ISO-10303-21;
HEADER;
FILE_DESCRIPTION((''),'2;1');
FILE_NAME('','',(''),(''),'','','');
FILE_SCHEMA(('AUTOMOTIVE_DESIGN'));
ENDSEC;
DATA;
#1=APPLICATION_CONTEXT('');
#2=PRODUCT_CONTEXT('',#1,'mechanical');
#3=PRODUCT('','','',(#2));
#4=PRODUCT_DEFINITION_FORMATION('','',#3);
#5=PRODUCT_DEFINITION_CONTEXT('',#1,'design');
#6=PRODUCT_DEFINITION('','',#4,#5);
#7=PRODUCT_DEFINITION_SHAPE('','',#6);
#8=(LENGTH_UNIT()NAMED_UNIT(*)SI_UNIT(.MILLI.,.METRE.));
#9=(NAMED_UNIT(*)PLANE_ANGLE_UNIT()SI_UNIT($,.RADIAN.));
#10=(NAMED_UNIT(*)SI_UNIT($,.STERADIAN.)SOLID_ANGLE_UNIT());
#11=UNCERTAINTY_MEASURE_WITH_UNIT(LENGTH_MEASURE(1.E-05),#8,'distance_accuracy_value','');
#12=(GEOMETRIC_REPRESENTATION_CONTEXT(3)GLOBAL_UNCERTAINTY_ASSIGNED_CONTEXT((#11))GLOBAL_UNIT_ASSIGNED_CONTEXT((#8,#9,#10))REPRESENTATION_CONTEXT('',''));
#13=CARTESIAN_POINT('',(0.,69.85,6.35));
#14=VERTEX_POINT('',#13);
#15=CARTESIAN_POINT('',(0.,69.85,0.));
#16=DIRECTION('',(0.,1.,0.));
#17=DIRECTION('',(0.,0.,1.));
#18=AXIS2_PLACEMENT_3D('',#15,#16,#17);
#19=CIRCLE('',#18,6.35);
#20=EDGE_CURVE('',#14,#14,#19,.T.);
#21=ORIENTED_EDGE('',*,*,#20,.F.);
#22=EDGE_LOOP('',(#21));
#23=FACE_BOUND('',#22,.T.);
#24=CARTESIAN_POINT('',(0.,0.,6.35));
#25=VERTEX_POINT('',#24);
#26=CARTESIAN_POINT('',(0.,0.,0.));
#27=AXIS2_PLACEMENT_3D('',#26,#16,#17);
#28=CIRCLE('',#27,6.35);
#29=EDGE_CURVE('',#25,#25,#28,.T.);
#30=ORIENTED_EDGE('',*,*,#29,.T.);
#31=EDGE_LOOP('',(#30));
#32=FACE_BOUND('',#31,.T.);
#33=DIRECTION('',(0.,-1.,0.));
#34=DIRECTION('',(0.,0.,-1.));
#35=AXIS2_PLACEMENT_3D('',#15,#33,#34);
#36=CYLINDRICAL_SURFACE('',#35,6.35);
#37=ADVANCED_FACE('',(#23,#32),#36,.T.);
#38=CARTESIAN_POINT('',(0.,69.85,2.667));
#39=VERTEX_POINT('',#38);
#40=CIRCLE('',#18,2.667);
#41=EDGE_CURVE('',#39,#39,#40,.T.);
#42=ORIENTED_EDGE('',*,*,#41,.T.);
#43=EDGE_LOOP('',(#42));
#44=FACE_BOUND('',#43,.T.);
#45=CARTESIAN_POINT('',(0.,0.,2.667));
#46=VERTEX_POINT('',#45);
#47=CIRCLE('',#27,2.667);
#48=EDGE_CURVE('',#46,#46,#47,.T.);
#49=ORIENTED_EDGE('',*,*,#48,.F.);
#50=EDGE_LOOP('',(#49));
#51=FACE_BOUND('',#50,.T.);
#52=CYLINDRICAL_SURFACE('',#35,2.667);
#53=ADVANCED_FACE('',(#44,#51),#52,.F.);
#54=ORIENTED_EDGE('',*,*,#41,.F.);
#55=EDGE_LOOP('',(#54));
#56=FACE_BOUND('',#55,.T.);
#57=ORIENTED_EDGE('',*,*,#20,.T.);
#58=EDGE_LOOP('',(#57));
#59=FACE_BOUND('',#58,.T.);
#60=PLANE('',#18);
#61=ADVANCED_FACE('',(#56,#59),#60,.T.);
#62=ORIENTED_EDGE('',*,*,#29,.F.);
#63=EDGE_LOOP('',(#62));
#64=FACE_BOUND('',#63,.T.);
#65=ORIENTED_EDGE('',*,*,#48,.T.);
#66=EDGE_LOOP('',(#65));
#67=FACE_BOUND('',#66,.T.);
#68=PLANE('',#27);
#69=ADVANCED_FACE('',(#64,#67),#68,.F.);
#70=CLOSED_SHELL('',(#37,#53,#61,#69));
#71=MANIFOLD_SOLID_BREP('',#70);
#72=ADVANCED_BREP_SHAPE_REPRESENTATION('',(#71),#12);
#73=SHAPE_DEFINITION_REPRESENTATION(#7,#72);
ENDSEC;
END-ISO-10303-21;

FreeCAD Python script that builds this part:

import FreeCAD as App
import Part
import Sketcher

V = App.Vector
Q = App.Units.Quantity

doc = App.newDocument("Part")
body = doc.addObject("PartDesign::Body", "Body")

sketch1 = doc.addObject("Sketcher::SketchObject", "Sketch")
body.addObject(sketch1)
sketch1.AttachmentSupport = (doc.XZ_Plane, [""])
sketch1.MapMode = "FlatFace"
sketch1.addGeometry([
    Part.Circle(V(0, 0, 0), V(0, 0, 1), 6.3),
    Part.Circle(V(0, 0, 0), V(0, 0, 1), 2.7),
], False)
sketch1.addConstraint([
    Sketcher.Constraint("Coincident", 0, 3, -1, 1),
    Sketcher.Constraint("Coincident", 1, 3, -1, 1),
    Sketcher.Constraint("Diameter", 0, Q("0.5 in")),
    Sketcher.Constraint("Diameter", 1, Q("0.21 in")),
])
pad1 = doc.addObject("PartDesign::Pad", "Pad")
body.addObject(pad1)
pad1.Profile = sketch1
pad1.Length = Q("2.75 in")
pad1.Reversed = True

doc.recompute()
